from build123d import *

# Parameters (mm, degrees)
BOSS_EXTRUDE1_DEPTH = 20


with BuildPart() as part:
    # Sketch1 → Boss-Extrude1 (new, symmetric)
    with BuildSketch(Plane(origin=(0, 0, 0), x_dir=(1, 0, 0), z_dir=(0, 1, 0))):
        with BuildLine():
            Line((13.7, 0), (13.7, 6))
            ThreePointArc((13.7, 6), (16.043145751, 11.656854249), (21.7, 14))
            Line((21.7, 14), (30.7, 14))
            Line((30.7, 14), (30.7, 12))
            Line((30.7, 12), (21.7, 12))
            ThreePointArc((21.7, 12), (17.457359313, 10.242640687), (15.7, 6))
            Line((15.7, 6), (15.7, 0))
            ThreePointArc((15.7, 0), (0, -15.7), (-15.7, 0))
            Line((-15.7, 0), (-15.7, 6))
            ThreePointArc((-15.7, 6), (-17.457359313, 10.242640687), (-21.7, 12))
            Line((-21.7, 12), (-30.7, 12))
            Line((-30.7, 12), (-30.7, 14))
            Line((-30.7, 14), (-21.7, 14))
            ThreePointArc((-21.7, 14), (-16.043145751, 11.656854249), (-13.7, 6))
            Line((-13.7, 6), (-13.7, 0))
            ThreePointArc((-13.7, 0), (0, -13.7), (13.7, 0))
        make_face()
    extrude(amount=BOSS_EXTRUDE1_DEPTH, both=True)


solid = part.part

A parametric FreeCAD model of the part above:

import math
import FreeCAD as App
import Part
import Sketcher

doc = App.newDocument("Part")
body = doc.addObject("PartDesign::Body", "Body")

# Sketch on XZ plane
sketch1 = body.newObject("Sketcher::SketchObject", "Sketch")
sketch1.AttachmentSupport = (doc.getObject("XZ_Plane"), [""])
sketch1.MapMode = "FlatFace"
sketch1.addGeometry([
    Part.LineSegment(App.Vector(13.7, -6, 0), App.Vector(13.7, 0, 0)),  # 0
    Part.ArcOfCircle(Part.Circle(App.Vector(0, 0, 0), App.Vector(0, 0, 1), 13.7), math.radians(0), math.radians(180)),  # 1
    Part.LineSegment(App.Vector(-13.7, 0, 0), App.Vector(-13.7, -6, 0)),  # 2
    Part.ArcOfCircle(Part.Circle(App.Vector(-21.7, -6, 0), App.Vector(0, 0, 1), 8), math.radians(-90), math.radians(0)),  # 3
    Part.LineSegment(App.Vector(-21.7, -14, 0), App.Vector(-30.7, -14, 0)),  # 4
    Part.LineSegment(App.Vector(-30.7, -14, 0), App.Vector(-30.7, -12, 0)),  # 5
    Part.LineSegment(App.Vector(-30.7, -12, 0), App.Vector(-21.7, -12, 0)),  # 6
    Part.ArcOfCircle(Part.Circle(App.Vector(-21.7, -6, 0), App.Vector(0, 0, 1), 6), math.radians(-90), math.radians(0)),  # 7
    Part.LineSegment(App.Vector(-15.7, -6, 0), App.Vector(-15.7, 0, 0)),  # 8
    Part.ArcOfCircle(Part.Circle(App.Vector(0, 0, 0), App.Vector(0, 0, 1), 15.7), math.radians(0), math.radians(180)),  # 9
    Part.LineSegment(App.Vector(15.7, 0, 0), App.Vector(15.7, -6, 0)),  # 10
    Part.ArcOfCircle(Part.Circle(App.Vector(21.7, -6, 0), App.Vector(0, 0, 1), 6), math.radians(180), math.radians(270)),  # 11
    Part.LineSegment(App.Vector(21.7, -12, 0), App.Vector(30.7, -12, 0)),  # 12
    Part.LineSegment(App.Vector(30.7, -12, 0), App.Vector(30.7, -14, 0)),  # 13
    Part.LineSegment(App.Vector(30.7, -14, 0), App.Vector(21.7, -14, 0)),  # 14
    Part.ArcOfCircle(Part.Circle(App.Vector(21.7, -6, 0), App.Vector(0, 0, 1), 8), math.radians(-180), math.radians(-90)),  # 15
], False)
sketch1.addConstraint([
    Sketcher.Constraint("Tangent", 0, 2, 1, 1),
    Sketcher.Constraint("Tangent", 1, 2, 2, 1),
    Sketcher.Constraint("Tangent", 2, 2, 3, 2),
    Sketcher.Constraint("Tangent", 3, 1, 4, 1),
    Sketcher.Constraint("Coincident", 4, 2, 5, 1),
    Sketcher.Constraint("Coincident", 5, 2, 6, 1),
    Sketcher.Constraint("Tangent", 6, 2, 7, 1),
    Sketcher.Constraint("Tangent", 7, 2, 8, 1),
    Sketcher.Constraint("Tangent", 8, 2, 9, 2),
    Sketcher.Constraint("Tangent", 9, 1, 10, 1),
    Sketcher.Constraint("Tangent", 10, 2, 11, 1),
    Sketcher.Constraint("Tangent", 11, 2, 12, 1),
    Sketcher.Constraint("Coincident", 12, 2, 13, 1),
    Sketcher.Constraint("Coincident", 13, 2, 14, 1),
    Sketcher.Constraint("Tangent", 14, 2, 15, 2),
    Sketcher.Constraint("Tangent", 15, 1, 0, 1),
    Sketcher.Constraint("Vertical", 0),
    Sketcher.Constraint("Vertical", 2),
    Sketcher.Constraint("Horizontal", 4),
    Sketcher.Constraint("Vertical", 5),
    Sketcher.Constraint("Horizontal", 6),
    Sketcher.Constraint("Vertical", 8),
    Sketcher.Constraint("Vertical", 10),
    Sketcher.Constraint("Horizontal", 12),
    Sketcher.Constraint("Vertical", 13),
    Sketcher.Constraint("Horizontal", 14),
    Sketcher.Constraint("Coincident", 1, 3, -1, 1),
    Sketcher.Constraint("Coincident", 9, 3, -1, 1),
    Sketcher.Constraint("Coincident", 7, 3, 3, 3),
    Sketcher.Constraint("Coincident", 15, 3, 11, 3),
    Sketcher.Constraint("Equal", 7, 11),
    Sketcher.Constraint("Symmetric", 5, 2, 12, 2, -2),
    Sketcher.Constraint("Radius", 3, 8.0),
    Sketcher.Constraint("Radius", 7, 6.0),
    Sketcher.Constraint("Radius", 1, 13.7),
    Sketcher.Constraint("DistanceX", 4, 2, 4, 1, 9.0),
    Sketcher.Constraint("DistanceY", 0, 1, 0, 2, 6.0),
])
pad1 = body.newObject("PartDesign::Pad", "Pad")
pad1.Profile = sketch1
pad1.Length = 40
pad1.Midplane = True

doc.recompute()
